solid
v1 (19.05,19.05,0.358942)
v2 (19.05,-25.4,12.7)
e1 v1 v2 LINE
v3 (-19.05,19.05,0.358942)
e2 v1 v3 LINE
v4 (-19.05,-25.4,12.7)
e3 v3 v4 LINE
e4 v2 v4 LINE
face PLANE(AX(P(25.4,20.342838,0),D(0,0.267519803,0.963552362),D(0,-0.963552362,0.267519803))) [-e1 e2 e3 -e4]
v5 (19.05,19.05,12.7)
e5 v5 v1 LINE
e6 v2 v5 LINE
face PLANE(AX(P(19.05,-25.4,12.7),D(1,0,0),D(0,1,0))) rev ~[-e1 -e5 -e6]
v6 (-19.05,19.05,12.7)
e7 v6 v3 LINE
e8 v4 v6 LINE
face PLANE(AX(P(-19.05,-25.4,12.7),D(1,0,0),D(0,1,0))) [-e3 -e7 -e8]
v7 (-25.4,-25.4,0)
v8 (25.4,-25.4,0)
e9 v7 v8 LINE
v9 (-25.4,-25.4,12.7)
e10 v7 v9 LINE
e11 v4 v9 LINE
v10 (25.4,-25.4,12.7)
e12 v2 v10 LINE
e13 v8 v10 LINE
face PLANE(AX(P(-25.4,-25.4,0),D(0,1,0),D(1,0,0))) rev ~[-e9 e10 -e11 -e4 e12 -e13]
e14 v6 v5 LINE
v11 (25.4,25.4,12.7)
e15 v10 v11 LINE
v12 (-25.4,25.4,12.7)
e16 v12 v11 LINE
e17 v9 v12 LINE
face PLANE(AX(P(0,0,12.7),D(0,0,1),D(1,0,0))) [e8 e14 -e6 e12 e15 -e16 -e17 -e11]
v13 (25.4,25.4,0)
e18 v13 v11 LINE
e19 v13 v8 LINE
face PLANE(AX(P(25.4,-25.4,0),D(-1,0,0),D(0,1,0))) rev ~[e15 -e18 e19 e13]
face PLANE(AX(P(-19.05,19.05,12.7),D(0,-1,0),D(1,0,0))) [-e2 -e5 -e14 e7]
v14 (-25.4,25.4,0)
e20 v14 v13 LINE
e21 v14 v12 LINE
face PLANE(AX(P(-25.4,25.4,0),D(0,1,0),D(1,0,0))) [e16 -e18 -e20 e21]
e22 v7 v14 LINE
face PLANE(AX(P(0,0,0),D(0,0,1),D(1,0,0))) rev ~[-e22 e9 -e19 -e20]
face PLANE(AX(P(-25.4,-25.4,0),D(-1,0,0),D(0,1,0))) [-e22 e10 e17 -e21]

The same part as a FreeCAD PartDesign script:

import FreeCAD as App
import Part
import Sketcher

V = App.Vector
Q = App.Units.Quantity

doc = App.newDocument("Part")
body = doc.addObject("PartDesign::Body", "Body")

sketch1 = body.newObject("Sketcher::SketchObject", "Sketch")
sketch1.AttachmentSupport = (doc.getObject("XY_Plane"), [""])
sketch1.MapMode = "FlatFace"
sketch1.addGeometry([
    Part.LineSegment(V(-25, 25, 0), V(-25, -25, 0)),
    Part.LineSegment(V(-25, -25, 0), V(25, -25, 0)),
    Part.LineSegment(V(25, -25, 0), V(25, 25, 0)),
    Part.LineSegment(V(25, 25, 0), V(-25, 25, 0)),
], False)
sketch1.addConstraint([
    Sketcher.Constraint("Coincident", 0, 2, 1, 1),
    Sketcher.Constraint("Coincident", 1, 2, 2, 1),
    Sketcher.Constraint("Coincident", 2, 2, 3, 1),
    Sketcher.Constraint("Coincident", 3, 2, 0, 1),
    Sketcher.Constraint("Vertical", 0),
    Sketcher.Constraint("Horizontal", 1),
    Sketcher.Constraint("Vertical", 2),
    Sketcher.Constraint("Horizontal", 3),
    Sketcher.Constraint("Symmetric", 0, 2, 2, 2, -1, 1),
    Sketcher.Constraint("Equal", 3, 0),
    Sketcher.Constraint("DistanceX", 1, 1, 1, 2, Q("2 in")),
])
pad1 = body.newObject("PartDesign::Pad", "Pad")
pad1.Profile = sketch1
pad1.Length = Q("0.5 in")

sketch2 = body.newObject("Sketcher::SketchObject", "Sketch001")
sketch2.AttachmentSupport = (doc.getObject("XY_Plane"), [""])
sketch2.MapMode = "FlatFace"
sketch2.AttachmentOffset = App.Placement(V(0, 0, 0.5 * 25.4), App.Rotation())
sketch2.addGeometry([
    Part.LineSegment(V(-19, 19, 0), V(-19, -25, 0)),
    Part.LineSegment(V(-19, -25, 0), V(19, -25, 0)),
    Part.LineSegment(V(19, -25, 0), V(19, 19, 0)),
    Part.LineSegment(V(19, 19, 0), V(-19, 19, 0)),
], False)
sketch2.addConstraint([
    Sketcher.Constraint("Coincident", 0, 2, 1, 1),
    Sketcher.Constraint("Coincident", 1, 2, 2, 1),
    Sketcher.Constraint("Coincident", 2, 2, 3, 1),
    Sketcher.Constraint("Coincident", 3, 2, 0, 1),
    Sketcher.Constraint("Vertical", 0),
    Sketcher.Constraint("Horizontal", 1),
    Sketcher.Constraint("Vertical", 2),
    Sketcher.Constraint("Horizontal", 3),
    Sketcher.Constraint("DistanceX", 1, 1, 1, 2, Q("1.5 in")),
    Sketcher.Constraint("DistanceY", 0, 2, -1, 1, Q("1 in")),
    Sketcher.Constraint("DistanceY", 0, 2, 0, 1, Q("1.75 in")),
    Sketcher.Constraint("DistanceX", 0, 2, -1, 1, Q("0.75 in")),
])
pocket1 = body.newObject("PartDesign::Pocket", "Pocket")
pocket1.Profile = sketch2
pocket1.Length = Q("1 in")

sketch3 = body.newObject("Sketcher::SketchObject", "Sketch002")
sketch3.AttachmentSupport = (doc.getObject("YZ_Plane"), [""])
sketch3.MapMode = "FlatFace"
sketch3.AttachmentOffset = App.Placement(V(0, 0, 1 * 25.4), App.Rotation())
sketch3.addGeometry([
    Part.LineSegment(V(20, 0, 0), V(-25, 13, 0)),
    Part.LineSegment(V(-25, 13, 0), V(-25, 0, 0)),
    Part.LineSegment(V(-25, 0, 0), V(20, 0, 0)),
], False)
sketch3.addConstraint([
    Sketcher.Constraint("Coincident", 0, 2, 1, 1),
    Sketcher.Constraint("Coincident", 1, 2, 2, 1),
    Sketcher.Constraint("Coincident", 2, 2, 0, 1),
    Sketcher.Constraint("Vertical", 1),
    Sketcher.Constraint("Horizontal", 2),
    Sketcher.Constraint("PointOnObject", 1, 2, -1),
    Sketcher.Constraint("DistanceY", 1, 2, 1, 1, Q("0.5 in")),
    Sketcher.Constraint("DistanceX", 0, 2, -1, 1, Q("1 in")),
    Sketcher.Constraint("Distance", 0, Q("47.473121 mm")),
])
pad2 = body.newObject("PartDesign::Pad", "Pad001")
pad2.Profile = sketch3
pad2.Length = Q("1.88 in")
pad2.Reversed = True

doc.recompute()
